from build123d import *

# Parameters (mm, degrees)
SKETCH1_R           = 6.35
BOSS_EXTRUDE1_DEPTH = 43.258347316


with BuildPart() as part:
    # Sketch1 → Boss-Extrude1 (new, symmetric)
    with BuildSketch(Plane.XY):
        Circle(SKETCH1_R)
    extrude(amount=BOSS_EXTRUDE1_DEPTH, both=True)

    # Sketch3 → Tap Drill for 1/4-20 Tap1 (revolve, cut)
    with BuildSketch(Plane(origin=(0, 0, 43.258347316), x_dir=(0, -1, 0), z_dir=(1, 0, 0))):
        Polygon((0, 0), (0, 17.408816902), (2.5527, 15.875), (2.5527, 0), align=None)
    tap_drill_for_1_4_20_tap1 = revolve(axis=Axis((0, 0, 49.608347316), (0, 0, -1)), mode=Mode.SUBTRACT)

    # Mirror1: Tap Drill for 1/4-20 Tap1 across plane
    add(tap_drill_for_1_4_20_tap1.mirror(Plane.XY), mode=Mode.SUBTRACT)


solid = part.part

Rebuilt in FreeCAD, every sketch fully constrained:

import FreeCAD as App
import Part
import Sketcher
Q = App.Units.Quantity

doc = App.newDocument("Part")
params = doc.addObject("Spreadsheet::Sheet", "Params")
for row, (alias, value) in enumerate([
    ("sketch1_diameter", "0.5 in"),
    ("pad1_length", "86.516695 mm"),
    ("sketch2_height", "0.625 in"),
    ("groove_angle", "360 deg"),
], start=1):
    params.set(f"A{row}", alias)
    params.set(f"B{row}", "=" + value)
    params.setAlias(f"B{row}", alias)

body = doc.addObject("PartDesign::Body", "Body")

# Sketch on XY plane
sketch1 = doc.addObject("Sketcher::SketchObject", "Sketch")
body.addObject(sketch1)
sketch1.AttachmentSupport = (doc.XY_Plane, [""])
sketch1.MapMode = "FlatFace"
sketch1.addGeometry(Part.Circle(App.Vector(0, 0, 0), App.Vector(0, 0, 1), 6.35), False)
sketch1.addConstraint([
    Sketcher.Constraint("Coincident", 0, 3, -1, 1),
    Sketcher.Constraint("Diameter", 0, Q("0.5 in")),
])
sketch1.setExpression("Constraints[1]", "Params.sketch1_diameter")
pad1 = doc.addObject("PartDesign::Pad", "Pad")
body.addObject(pad1)
pad1.Profile = sketch1
pad1.setExpression("Length", "Params.pad1_length")
pad1.Midplane = True

# Sketch on YZ plane
sketch2 = doc.addObject("Sketcher::SketchObject", "Sketch001")
body.addObject(sketch2)
sketch2.AttachmentSupport = (doc.YZ_Plane, [""])
sketch2.MapMode = "FlatFace"
sketch2.addGeometry([
    Part.LineSegment(App.Vector(0, 25.84953, 0), App.Vector(0, 43.258347, 0)),
    Part.LineSegment(App.Vector(0, 43.258347, 0), App.Vector(-2.5527, 43.258347, 0)),
    Part.LineSegment(App.Vector(-2.5527, 43.258347, 0), App.Vector(-2.5527, 27.383347, 0)),
    Part.LineSegment(App.Vector(-2.5527, 27.383347, 0), App.Vector(0, 25.84953, 0)),
], False)
sketch2.addConstraint([
    Sketcher.Constraint("Coincident", 0, 2, 1, 1),
    Sketcher.Constraint("Coincident", 1, 2, 2, 1),
    Sketcher.Constraint("Coincident", 2, 2, 3, 1),
    Sketcher.Constraint("Coincident", 3, 2, 0, 1),
    Sketcher.Constraint("Vertical", 0),
    Sketcher.Constraint("Horizontal", 1),
    Sketcher.Constraint("Vertical", 2),
    Sketcher.Constraint("PointOnObject", 0, 2, -2),
    Sketcher.Constraint("Angle", 3, Q("-31 deg")),
    Sketcher.Constraint("DistanceY", 2, 2, 2, 1, Q("0.625 in")),
    Sketcher.Constraint("DistanceX", 1, 2, 1, 1, Q("0.1005 in")),
    Sketcher.Constraint("DistanceY", -1, 1, 3, 2, Q("25.84953 mm")),
])
sketch2.setExpression("Constraints[9]", "Params.sketch2_height")
groove = doc.addObject("PartDesign::Groove", "Groove")
body.addObject(groove)
groove.Profile = sketch2
groove.ReferenceAxis = (sketch2, ["V_Axis"])
groove.setExpression("Angle", "Params.groove_angle")
doc.recompute()

mirrored = doc.addObject("PartDesign::Mirrored", "Mirrored")
body.addObject(mirrored)
mirrored.Originals = [groove]
mirrored.MirrorPlane = (doc.XY_Plane, [""])
body.Tip = mirrored

doc.recompute()
